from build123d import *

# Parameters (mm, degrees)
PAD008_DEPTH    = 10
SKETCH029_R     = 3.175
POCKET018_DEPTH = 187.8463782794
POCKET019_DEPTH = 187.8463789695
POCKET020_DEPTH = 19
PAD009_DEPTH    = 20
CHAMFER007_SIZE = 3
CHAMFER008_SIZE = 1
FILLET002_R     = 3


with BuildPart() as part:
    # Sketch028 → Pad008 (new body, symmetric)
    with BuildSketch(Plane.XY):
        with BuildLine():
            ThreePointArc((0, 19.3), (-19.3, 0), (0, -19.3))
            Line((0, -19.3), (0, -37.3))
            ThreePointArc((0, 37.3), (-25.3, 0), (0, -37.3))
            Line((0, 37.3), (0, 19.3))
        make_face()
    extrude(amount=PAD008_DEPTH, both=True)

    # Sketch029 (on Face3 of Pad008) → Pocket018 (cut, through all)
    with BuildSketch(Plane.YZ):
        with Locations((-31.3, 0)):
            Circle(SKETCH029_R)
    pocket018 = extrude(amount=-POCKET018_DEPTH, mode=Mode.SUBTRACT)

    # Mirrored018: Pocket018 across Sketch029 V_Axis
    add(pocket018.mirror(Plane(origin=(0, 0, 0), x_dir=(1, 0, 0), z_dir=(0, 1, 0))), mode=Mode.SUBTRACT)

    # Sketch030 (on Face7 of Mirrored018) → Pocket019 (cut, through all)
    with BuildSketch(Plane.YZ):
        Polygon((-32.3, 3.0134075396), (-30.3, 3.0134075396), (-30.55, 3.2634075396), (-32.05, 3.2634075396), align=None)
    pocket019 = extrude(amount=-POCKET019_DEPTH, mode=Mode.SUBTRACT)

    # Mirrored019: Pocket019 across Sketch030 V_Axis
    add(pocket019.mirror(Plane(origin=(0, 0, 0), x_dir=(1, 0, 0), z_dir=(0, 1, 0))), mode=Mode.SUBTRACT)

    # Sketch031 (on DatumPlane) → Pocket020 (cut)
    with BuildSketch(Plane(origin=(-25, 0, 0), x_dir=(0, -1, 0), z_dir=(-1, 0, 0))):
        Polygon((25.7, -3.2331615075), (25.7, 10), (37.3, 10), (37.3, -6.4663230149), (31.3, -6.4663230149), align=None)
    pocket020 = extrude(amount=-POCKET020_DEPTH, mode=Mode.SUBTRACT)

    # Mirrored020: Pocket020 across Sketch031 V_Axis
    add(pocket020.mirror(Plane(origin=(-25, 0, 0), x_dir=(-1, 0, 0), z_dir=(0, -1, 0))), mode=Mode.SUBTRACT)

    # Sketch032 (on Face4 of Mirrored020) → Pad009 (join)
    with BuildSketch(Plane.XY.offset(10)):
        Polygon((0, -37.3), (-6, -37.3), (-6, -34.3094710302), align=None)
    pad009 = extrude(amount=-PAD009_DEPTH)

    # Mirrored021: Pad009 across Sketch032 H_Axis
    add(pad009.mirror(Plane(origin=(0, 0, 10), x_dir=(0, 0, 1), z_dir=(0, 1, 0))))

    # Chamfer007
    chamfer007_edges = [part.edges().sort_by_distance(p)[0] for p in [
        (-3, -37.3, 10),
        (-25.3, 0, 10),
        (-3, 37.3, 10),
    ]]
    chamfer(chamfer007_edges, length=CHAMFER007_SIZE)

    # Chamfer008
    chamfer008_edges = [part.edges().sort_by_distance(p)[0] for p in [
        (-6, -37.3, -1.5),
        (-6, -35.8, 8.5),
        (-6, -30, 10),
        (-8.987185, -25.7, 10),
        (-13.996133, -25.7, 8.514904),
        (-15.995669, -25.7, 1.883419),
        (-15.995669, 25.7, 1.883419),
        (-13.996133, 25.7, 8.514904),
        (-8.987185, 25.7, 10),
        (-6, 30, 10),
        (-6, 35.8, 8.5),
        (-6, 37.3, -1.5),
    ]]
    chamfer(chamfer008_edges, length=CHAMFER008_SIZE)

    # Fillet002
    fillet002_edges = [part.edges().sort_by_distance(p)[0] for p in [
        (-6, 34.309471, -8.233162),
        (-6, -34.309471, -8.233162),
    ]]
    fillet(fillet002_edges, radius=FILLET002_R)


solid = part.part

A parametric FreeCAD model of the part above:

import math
import FreeCAD as App
import Part
import Sketcher
Q = App.Units.Quantity


def edges_at(feature, points):
    """Names of the edges that pass closest to the given points."""
    edges = feature.Shape.Edges
    near = lambda p: min(range(len(edges)), key=lambda i: edges[i].distToShape(Part.Vertex(*p))[0])
    return sorted({f"Edge{near(p) + 1}" for p in points})


def add_polygon(sketch, points):
    """Adds a closed chain of lines whose ends are joined by coincident constraints."""
    first, n = sketch.GeometryCount, len(points)
    for a, b in zip(points, points[1:] + points[:1]):
        sketch.addGeometry(Part.LineSegment(App.Vector(*a, 0), App.Vector(*b, 0)), False)
    for i in range(n):
        sketch.addConstraint(Sketcher.Constraint("Coincident", first + i, 2, first + (i + 1) % n, 1))

doc = App.newDocument("Part")
params = doc.addObject("Spreadsheet::Sheet", "Params")
for row, (alias, value) in enumerate([
    ("sketch1_radius", "19.3 mm"),
    ("sketch1_height", "18 mm"),
    ("pad1_length", "20 mm"),
    ("sketch2_diameter", "6.35 mm"),
    ("sketch3_width", "2 mm"),
    ("sketch3_width2", "1.5 mm"),
    ("sketch4_width", "6 mm"),
    ("sketch4_width2", "11.6 mm"),
    ("pocket3_length", "19 mm"),
    ("sketch5_width", "6 mm"),
    ("pad2_length", "20 mm"),
    ("chamfer_size", "3 mm"),
    ("chamfer2_size", "1 mm"),
    ("fillet_radius", "3 mm"),
], start=1):
    params.set(f"A{row}", alias)
    params.set(f"B{row}", "=" + value)
    params.setAlias(f"B{row}", alias)

body = doc.addObject("PartDesign::Body", "Body")

# Sketch on XY plane
sketch1 = body.newObject("Sketcher::SketchObject", "Sketch")
sketch1.AttachmentSupport = (doc.getObject("XY_Plane"), [""])
sketch1.MapMode = "FlatFace"
sketch1.addGeometry(Part.ArcOfCircle(Part.Circle(App.Vector(0, 0, 0), App.Vector(0, 0, 1), 19), math.radians(90), math.radians(270)), False)
sketch1.addGeometry(Part.LineSegment(App.Vector(0, 19, 0), App.Vector(0, 37, 0)), False)
sketch1.addGeometry(Part.ArcOfCircle(Part.Circle(App.Vector(15, 0, 0), App.Vector(0, 0, 1), 40), math.radians(112), math.radians(248)), False)
sketch1.addGeometry(Part.LineSegment(App.Vector(0, -37, 0), App.Vector(0, -19, 0)), False)
sketch1.addConstraint(Sketcher.Constraint("Coincident", 0, 1, 1, 1))
sketch1.addConstraint(Sketcher.Constraint("Coincident", 1, 2, 2, 1))
sketch1.addConstraint(Sketcher.Constraint("Coincident", 2, 2, 3, 1))
sketch1.addConstraint(Sketcher.Constraint("Coincident", 3, 2, 0, 2))
sketch1.addConstraint(Sketcher.Constraint("Vertical", 1))
sketch1.addConstraint(Sketcher.Constraint("Vertical", 3))
sketch1.addConstraint(Sketcher.Constraint("Coincident", 0, 3, -1, 1))
sketch1.addConstraint(Sketcher.Constraint("Symmetric", 1, 2, 2, 2, -1, 1))
sketch1.addConstraint(Sketcher.Constraint("PointOnObject", 2, 3, -1))
sketch1.addConstraint(Sketcher.Constraint("Radius", 0, 19.3))
sketch1.addConstraint(Sketcher.Constraint("DistanceY", 1, 1, 1, 2, 18.0))
sketch1.addConstraint(Sketcher.Constraint("Radius", 2, 40.14585))
sketch1.setExpression("Constraints[9]", "Params.sketch1_radius")
sketch1.setExpression("Constraints[10]", "Params.sketch1_height")
pad1 = body.newObject("PartDesign::Pad", "Pad")
pad1.Profile = sketch1
pad1.setExpression("Length", "Params.pad1_length")
pad1.Midplane = True

# Sketch on YZ plane
sketch2 = body.newObject("Sketcher::SketchObject", "Sketch001")
sketch2.AttachmentSupport = (doc.getObject("YZ_Plane"), [""])
sketch2.MapMode = "FlatFace"
sketch2.addGeometry(Part.Circle(App.Vector(-31.3, 0, 0), App.Vector(0, 0, 1), 3.2), False)
sketch2.addConstraint(Sketcher.Constraint("PointOnObject", 0, 3, -1))
sketch2.addConstraint(Sketcher.Constraint("Diameter", 0, 6.35))
sketch2.addConstraint(Sketcher.Constraint("DistanceX", 0, 3, -1, 1, 31.3))
sketch2.setExpression("Constraints[1]", "Params.sketch2_diameter")
pocket1 = body.newObject("PartDesign::Pocket", "Pocket")
pocket1.Profile = sketch2
pocket1.Type = "ThroughAll"
doc.recompute()

mirrored = body.newObject("PartDesign::Mirrored", "Mirrored")
mirrored.Originals = [pocket1]
mirrored.MirrorPlane = (doc.getObject("XZ_Plane"), [""])
body.Tip = mirrored

# Sketch on YZ plane
sketch3 = body.newObject("Sketcher::SketchObject", "Sketch002")
sketch3.AttachmentSupport = (doc.getObject("YZ_Plane"), [""])
sketch3.MapMode = "FlatFace"
add_polygon(sketch3, [(-32.3, 3.01), (-30.3, 3.01), (-30.55, 3.26), (-32.05, 3.26)])  # lines 0-3
sketch3.addConstraint(Sketcher.Constraint("Horizontal", 0))
sketch3.addConstraint(Sketcher.Constraint("Horizontal", 2))
sketch3.addConstraint(Sketcher.Constraint("Perpendicular", 1, 3))
sketch3.addConstraint(Sketcher.Constraint("Equal", 1, 3))
sketch3.addConstraint(Sketcher.Constraint("DistanceX", 0, 1, 0, 2, 2.0))
sketch3.addConstraint(Sketcher.Constraint("DistanceX", 2, 2, 2, 1, 1.5))
sketch3.addConstraint(Sketcher.Constraint("DistanceX", 0, 2, -1, 1, 30.3))
sketch3.addConstraint(Sketcher.Constraint("DistanceY", -1, 1, 0, 2, 3.013408))
sketch3.setExpression("Constraints[8]", "Params.sketch3_width")
sketch3.setExpression("Constraints[9]", "Params.sketch3_width2")
pocket2 = body.newObject("PartDesign::Pocket", "Pocket001")
pocket2.Profile = sketch3
pocket2.Type = "ThroughAll"
doc.recompute()

mirrored2 = body.newObject("PartDesign::Mirrored", "Mirrored001")
mirrored2.Originals = [pocket2]
mirrored2.MirrorPlane = (doc.getObject("XZ_Plane"), [""])
body.Tip = mirrored2

# Sketch on YZ plane
sketch4 = body.newObject("Sketcher::SketchObject", "Sketch003")
sketch4.AttachmentSupport = (doc.getObject("YZ_Plane"), [""])
sketch4.MapMode = "FlatFace"
sketch4.AttachmentOffset = App.Placement(App.Vector(0, 0, -25), App.Rotation())
add_polygon(sketch4, [(-26, 10), (-26, -3), (-31, -6), (-37, -6), (-37, 10)])  # lines 0-4
sketch4.addConstraint(Sketcher.Constraint("Vertical", 0))
sketch4.addConstraint(Sketcher.Constraint("Horizontal", 2))
sketch4.addConstraint(Sketcher.Constraint("Vertical", 3))
sketch4.addConstraint(Sketcher.Constraint("Horizontal", 4))
sketch4.addConstraint(Sketcher.Constraint("DistanceX", 2, 2, 2, 1, 6.0))
sketch4.addConstraint(Sketcher.Constraint("Angle", 1, Q("-150 deg")))
sketch4.addConstraint(Sketcher.Constraint("DistanceX", 4, 1, 4, 2, 11.6))
sketch4.addConstraint(Sketcher.Constraint("DistanceY", -1, 1, 3, 2, 10.0))
sketch4.addConstraint(Sketcher.Constraint("DistanceX", 0, 2, -1, 1, 25.7))
sketch4.addConstraint(Sketcher.Constraint("DistanceY", 0, 2, 0, 1, 13.233162))
sketch4.setExpression("Constraints[9]", "Params.sketch4_width")
sketch4.setExpression("Constraints[11]", "Params.sketch4_width2")
pocket3 = body.newObject("PartDesign::Pocket", "Pocket002")
pocket3.Profile = sketch4
pocket3.setExpression("Length", "Params.pocket3_length")
pocket3.Reversed = True
doc.recompute()

mirrored3 = body.newObject("PartDesign::Mirrored", "Mirrored002")
mirrored3.Originals = [pocket3]
mirrored3.MirrorPlane = (doc.getObject("XZ_Plane"), [""])
body.Tip = mirrored3

# Sketch on XY plane
sketch5 = body.newObject("Sketcher::SketchObject", "Sketch004")
sketch5.AttachmentSupport = (doc.getObject("XY_Plane"), [""])
sketch5.MapMode = "FlatFace"
sketch5.AttachmentOffset = App.Placement(App.Vector(0, 0, 10), App.Rotation())
add_polygon(sketch5, [(-6, -37.3), (0, -37.3), (-6, -34.3)])  # lines 0-2
sketch5.addConstraint(Sketcher.Constraint("Horizontal", 0))
sketch5.addConstraint(Sketcher.Constraint("Vertical", 2))
sketch5.addConstraint(Sketcher.Constraint("PointOnObject", 0, 2, -2))
sketch5.addConstraint(Sketcher.Constraint("DistanceX", 0, 1, 0, 2, 6.0))
sketch5.addConstraint(Sketcher.Constraint("DistanceY", 0, 2, -1, 1, 37.3))
sketch5.addConstraint(Sketcher.Constraint("DistanceY", 2, 2, 2, 1, 2.990529))
sketch5.setExpression("Constraints[6]", "Params.sketch5_width")
pad2 = body.newObject("PartDesign::Pad", "Pad001")
pad2.Profile = sketch5
pad2.setExpression("Length", "Params.pad2_length")
pad2.Reversed = True
doc.recompute()

mirrored4 = body.newObject("PartDesign::Mirrored", "Mirrored003")
mirrored4.Originals = [pad2]
mirrored4.MirrorPlane = (doc.getObject("XZ_Plane"), [""])
body.Tip = mirrored4
doc.recompute()

chamfer = body.newObject("PartDesign::Chamfer", "Chamfer")
chamfer.Base = (mirrored4, edges_at(mirrored4, [(-3, -37.3, 10), (-25.3, 0, 10), (-3, 37.3, 10)]))
chamfer.setExpression("Size", "Params.chamfer_size")
doc.recompute()

chamfer2 = body.newObject("PartDesign::Chamfer", "Chamfer001")
chamfer2.Base = (chamfer, edges_at(chamfer, [
    (-6, -37.3, -1.5),
    (-6, -35.8, 8.5),
    (-6, -30, 10),
    (-8.987, -25.7, 10),
    (-13.996, -25.7, 8.515),
    (-15.996, -25.7, 1.883),
    (-15.996, 25.7, 1.883),
    (-13.996, 25.7, 8.515),
    (-8.987, 25.7, 10),
    (-6, 30, 10),
    (-6, 35.8, 8.5),
    (-6, 37.3, -1.5),
]))
chamfer2.setExpression("Size", "Params.chamfer2_size")
doc.recompute()

fillet = body.newObject("PartDesign::Fillet", "Fillet")
fillet.Base = (chamfer2, edges_at(chamfer2, [(-6, 34.309, -8.233), (-6, -34.309, -8.233)]))
fillet.setExpression("Radius", "Params.fillet_radius")

doc.recompute()
